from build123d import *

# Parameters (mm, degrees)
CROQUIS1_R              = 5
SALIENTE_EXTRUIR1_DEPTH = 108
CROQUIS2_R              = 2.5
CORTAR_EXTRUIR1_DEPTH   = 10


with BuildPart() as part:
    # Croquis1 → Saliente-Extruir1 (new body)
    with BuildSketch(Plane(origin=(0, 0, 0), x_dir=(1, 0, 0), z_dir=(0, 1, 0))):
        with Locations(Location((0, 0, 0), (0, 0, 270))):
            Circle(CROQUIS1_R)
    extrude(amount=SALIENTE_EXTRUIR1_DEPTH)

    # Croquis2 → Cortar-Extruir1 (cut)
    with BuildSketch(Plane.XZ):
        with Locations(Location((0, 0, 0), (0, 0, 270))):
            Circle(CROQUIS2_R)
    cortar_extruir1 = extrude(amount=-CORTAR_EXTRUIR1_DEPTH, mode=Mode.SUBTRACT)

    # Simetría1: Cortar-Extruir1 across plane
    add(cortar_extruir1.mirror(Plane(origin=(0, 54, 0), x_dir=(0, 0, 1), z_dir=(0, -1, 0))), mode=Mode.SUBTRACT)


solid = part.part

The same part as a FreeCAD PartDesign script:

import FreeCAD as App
import Part
import Sketcher

V = App.Vector
Q = App.Units.Quantity

doc = App.newDocument("Part")
params = doc.addObject("Spreadsheet::Sheet", "Params")
for row, (alias, value) in enumerate([
    ("sketch1_diameter", "10 mm"),
    ("pad1_length", "108 mm"),
    ("sketch2_diameter", "5 mm"),
    ("pocket1_length", "10 mm"),
], start=1):
    params.set(f"A{row}", alias)
    params.set(f"B{row}", "=" + value)
    params.setAlias(f"B{row}", alias)

body = doc.addObject("PartDesign::Body", "Body")

# Sketch on XZ plane
sketch1 = body.newObject("Sketcher::SketchObject", "Sketch")
sketch1.AttachmentSupport = (doc.getObject("XZ_Plane"), [""])
sketch1.MapMode = "FlatFace"
sketch1.addGeometry(Part.Circle(V(0, 0, 0), V(0, 0, 1), 5), False)
sketch1.addConstraint(Sketcher.Constraint("Coincident", 0, 3, -1, 1))
sketch1.addConstraint(Sketcher.Constraint("Diameter", 0, Q("10 mm")))
sketch1.setExpression("Constraints[1]", "Params.sketch1_diameter")
pad1 = body.newObject("PartDesign::Pad", "Pad")
pad1.Profile = sketch1
pad1.setExpression("Length", "Params.pad1_length")
pad1.Reversed = True

# Sketch on XZ plane
sketch2 = body.newObject("Sketcher::SketchObject", "Sketch001")
sketch2.AttachmentSupport = (doc.getObject("XZ_Plane"), [""])
sketch2.MapMode = "FlatFace"
sketch2.addGeometry(Part.Circle(V(0, 0, 0), V(0, 0, 1), 2.5), False)
sketch2.addConstraint(Sketcher.Constraint("Coincident", 0, 3, -1, 1))
sketch2.addConstraint(Sketcher.Constraint("Diameter", 0, Q("5 mm")))
sketch2.setExpression("Constraints[1]", "Params.sketch2_diameter")
pocket1 = body.newObject("PartDesign::Pocket", "Pocket")
pocket1.Profile = sketch2
pocket1.setExpression("Length", "Params.pocket1_length")
doc.recompute()

datumplane = body.newObject("PartDesign::Plane", "DatumPlane")
datumplane.AttachmentSupport = (doc.getObject("XZ_Plane"), [""])
datumplane.MapMode = "FlatFace"
datumplane.AttachmentOffset = App.Placement(V(0, 0, -54), App.Rotation())
mirrored = body.newObject("PartDesign::Mirrored", "Mirrored")
mirrored.Originals = [pocket1]
mirrored.MirrorPlane = (datumplane, [""])
body.Tip = mirrored

doc.recompute()
